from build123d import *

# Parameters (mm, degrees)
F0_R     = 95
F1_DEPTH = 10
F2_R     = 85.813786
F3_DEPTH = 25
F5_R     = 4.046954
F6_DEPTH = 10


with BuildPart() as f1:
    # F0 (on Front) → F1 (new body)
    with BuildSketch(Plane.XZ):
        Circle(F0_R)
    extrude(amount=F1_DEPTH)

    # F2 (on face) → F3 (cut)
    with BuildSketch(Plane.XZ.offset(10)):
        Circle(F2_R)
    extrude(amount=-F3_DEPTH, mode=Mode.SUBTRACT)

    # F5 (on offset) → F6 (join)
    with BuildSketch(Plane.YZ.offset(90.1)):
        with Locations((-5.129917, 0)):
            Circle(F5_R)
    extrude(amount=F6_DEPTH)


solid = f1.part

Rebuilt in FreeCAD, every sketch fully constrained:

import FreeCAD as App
import Part
import Sketcher
from FreeCAD import Vector

doc = App.newDocument("Part")
params = doc.addObject("Spreadsheet::Sheet", "Params")
for row, (alias, value) in enumerate([
    ("sketch1_diameter", "190 mm"),
    ("pad1_length", "10 mm"),
    ("pocket1_length", "25 mm"),
    ("pad2_length", "10 mm"),
], start=1):
    params.set(f"A{row}", alias)
    params.set(f"B{row}", "=" + value)
    params.setAlias(f"B{row}", alias)

body = doc.addObject("PartDesign::Body", "Body")

sketch1 = body.newObject("Sketcher::SketchObject", "Sketch")
sketch1.AttachmentSupport = (doc.getObject("XZ_Plane"), [""])
sketch1.MapMode = "FlatFace"
sketch1.addGeometry(Part.Circle(Vector(0, 0, 0), Vector(0, 0, 1), 95), False)
sketch1.addConstraint(Sketcher.Constraint("Coincident", 0, 3, -1, 1))
sketch1.addConstraint(Sketcher.Constraint("Diameter", 0, 190.0))
sketch1.setExpression("Constraints[1]", "Params.sketch1_diameter")
pad1 = body.newObject("PartDesign::Pad", "Pad")
pad1.Profile = sketch1
pad1.setExpression("Length", "Params.pad1_length")

sketch2 = body.newObject("Sketcher::SketchObject", "Sketch001")
sketch2.AttachmentSupport = (doc.getObject("XZ_Plane"), [""])
sketch2.MapMode = "FlatFace"
sketch2.AttachmentOffset = App.Placement(Vector(0, 0, 10), App.Rotation())
sketch2.addGeometry(Part.Circle(Vector(0, 0, 0), Vector(0, 0, 1), 86), False)
sketch2.addConstraint(Sketcher.Constraint("Coincident", 0, 3, -1, 1))
sketch2.addConstraint(Sketcher.Constraint("Diameter", 0, 171.627572))
pocket1 = body.newObject("PartDesign::Pocket", "Pocket")
pocket1.Profile = sketch2
pocket1.setExpression("Length", "Params.pocket1_length")

sketch3 = body.newObject("Sketcher::SketchObject", "Sketch002")
sketch3.AttachmentSupport = (doc.getObject("YZ_Plane"), [""])
sketch3.MapMode = "FlatFace"
sketch3.AttachmentOffset = App.Placement(Vector(0, 0, 90.1), App.Rotation())
sketch3.addGeometry(Part.Circle(Vector(-5.1, 0, 0), Vector(0, 0, 1), 4), False)
sketch3.addConstraint(Sketcher.Constraint("PointOnObject", 0, 3, -1))
sketch3.addConstraint(Sketcher.Constraint("Diameter", 0, 8.093908))
sketch3.addConstraint(Sketcher.Constraint("DistanceX", 0, 3, -1, 1, 5.129917))
pad2 = body.newObject("PartDesign::Pad", "Pad001")
pad2.Profile = sketch3
pad2.setExpression("Length", "Params.pad2_length")

doc.recompute()
